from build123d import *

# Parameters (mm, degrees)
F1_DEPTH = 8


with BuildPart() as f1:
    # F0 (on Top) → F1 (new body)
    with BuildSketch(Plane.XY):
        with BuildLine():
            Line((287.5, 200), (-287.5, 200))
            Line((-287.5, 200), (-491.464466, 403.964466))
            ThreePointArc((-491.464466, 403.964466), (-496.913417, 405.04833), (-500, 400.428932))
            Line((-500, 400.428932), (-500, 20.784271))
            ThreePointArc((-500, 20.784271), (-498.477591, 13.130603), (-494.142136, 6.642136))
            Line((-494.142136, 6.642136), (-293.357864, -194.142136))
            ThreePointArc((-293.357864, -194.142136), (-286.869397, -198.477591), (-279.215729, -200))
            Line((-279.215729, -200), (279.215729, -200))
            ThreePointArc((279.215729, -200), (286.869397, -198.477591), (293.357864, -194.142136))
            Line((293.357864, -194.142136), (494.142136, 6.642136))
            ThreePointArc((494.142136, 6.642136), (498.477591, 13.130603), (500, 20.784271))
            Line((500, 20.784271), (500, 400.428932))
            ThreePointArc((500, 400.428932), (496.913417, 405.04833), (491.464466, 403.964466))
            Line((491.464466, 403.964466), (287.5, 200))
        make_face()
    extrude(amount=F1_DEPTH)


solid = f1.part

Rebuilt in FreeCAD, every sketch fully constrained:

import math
import FreeCAD as App
import Part
import Sketcher

doc = App.newDocument("Part")
body = doc.addObject("PartDesign::Body", "Body")

# Sketch on XY plane
sketch1 = body.newObject("Sketcher::SketchObject", "Sketch")
sketch1.AttachmentSupport = (doc.getObject("XY_Plane"), [""])
sketch1.MapMode = "FlatFace"
sketch1.addGeometry([
    Part.LineSegment(App.Vector(287.5, 200, 0), App.Vector(-287.5, 200, 0)),  # 0
    Part.LineSegment(App.Vector(-287.5, 200, 0), App.Vector(-491.5, 404, 0)),  # 1
    Part.ArcOfCircle(Part.Circle(App.Vector(-495, 400.4, 0), App.Vector(0, 0, 1), 5), math.radians(45), math.radians(180)),  # 2
    Part.LineSegment(App.Vector(-500, 400.4, 0), App.Vector(-500, 20.8, 0)),  # 3
    Part.ArcOfCircle(Part.Circle(App.Vector(-480, 20.8, 0), App.Vector(0, 0, 1), 20), math.radians(180), math.radians(225)),  # 4
    Part.LineSegment(App.Vector(-494.1, 6.6, 0), App.Vector(-293.4, -194.1, 0)),  # 5
    Part.ArcOfCircle(Part.Circle(App.Vector(-279.2, -180, 0), App.Vector(0, 0, 1), 20), math.radians(-135), math.radians(-90)),  # 6
    Part.LineSegment(App.Vector(-279.2, -200, 0), App.Vector(279.2, -200, 0)),  # 7
    Part.ArcOfCircle(Part.Circle(App.Vector(279.2, -180, 0), App.Vector(0, 0, 1), 20), math.radians(-90), math.radians(-45)),  # 8
    Part.LineSegment(App.Vector(293.4, -194.1, 0), App.Vector(494.1, 6.6, 0)),  # 9
    Part.ArcOfCircle(Part.Circle(App.Vector(480, 20.8, 0), App.Vector(0, 0, 1), 20), math.radians(-45), math.radians(0)),  # 10
    Part.LineSegment(App.Vector(500, 20.8, 0), App.Vector(500, 400.4, 0)),  # 11
    Part.ArcOfCircle(Part.Circle(App.Vector(495, 400.4, 0), App.Vector(0, 0, 1), 5), math.radians(0), math.radians(135)),  # 12
    Part.LineSegment(App.Vector(491.5, 404, 0), App.Vector(287.5, 200, 0)),  # 13
], False)
sketch1.addConstraint([
    Sketcher.Constraint("Coincident", 0, 2, 1, 1),
    Sketcher.Constraint("Tangent", 1, 2, 2, 1),
    Sketcher.Constraint("Tangent", 2, 2, 3, 1),
    Sketcher.Constraint("Tangent", 3, 2, 4, 1),
    Sketcher.Constraint("Tangent", 4, 2, 5, 1),
    Sketcher.Constraint("Tangent", 5, 2, 6, 1),
    Sketcher.Constraint("Tangent", 6, 2, 7, 1),
    Sketcher.Constraint("Tangent", 7, 2, 8, 1),
    Sketcher.Constraint("Tangent", 8, 2, 9, 1),
    Sketcher.Constraint("Tangent", 9, 2, 10, 1),
    Sketcher.Constraint("Tangent", 10, 2, 11, 1),
    Sketcher.Constraint("Tangent", 11, 2, 12, 1),
    Sketcher.Constraint("Tangent", 12, 2, 13, 1),
    Sketcher.Constraint("Coincident", 13, 2, 0, 1),
    Sketcher.Constraint("Horizontal", 0),
    Sketcher.Constraint("Vertical", 3),
    Sketcher.Constraint("Horizontal", 7),
    Sketcher.Constraint("Vertical", 11),
    Sketcher.Constraint("Equal", 4, 6),
    Sketcher.Constraint("Equal", 6, 8),
    Sketcher.Constraint("Equal", 8, 10),
    Sketcher.Constraint("Equal", 2, 12),
    Sketcher.Constraint("Symmetric", 4, 3, 10, 3, -2),
    Sketcher.Constraint("Symmetric", 1, 2, 12, 2, -2),
    Sketcher.Constraint("Parallel", 1, 5),
    Sketcher.Constraint("Perpendicular", 5, 9),
    Sketcher.Constraint("Parallel", 9, 13),
    Sketcher.Constraint("Radius", 2, 5.0),
    Sketcher.Constraint("DistanceX", 0, 2, 0, 1, 575.0),
    Sketcher.Constraint("DistanceX", 2, 3, -1, 1, 495.0),
    Sketcher.Constraint("DistanceY", -1, 1, 0, 2, 200.0),
    Sketcher.Constraint("DistanceY", 6, 2, -1, 1, 200.0),
    Sketcher.Constraint("Radius", 4, 19.999998),
    Sketcher.Constraint("DistanceX", 7, 1, 7, 2, 558.431458),
])
pad1 = body.newObject("PartDesign::Pad", "Pad")
pad1.Profile = sketch1
pad1.Length = 8

doc.recompute()
